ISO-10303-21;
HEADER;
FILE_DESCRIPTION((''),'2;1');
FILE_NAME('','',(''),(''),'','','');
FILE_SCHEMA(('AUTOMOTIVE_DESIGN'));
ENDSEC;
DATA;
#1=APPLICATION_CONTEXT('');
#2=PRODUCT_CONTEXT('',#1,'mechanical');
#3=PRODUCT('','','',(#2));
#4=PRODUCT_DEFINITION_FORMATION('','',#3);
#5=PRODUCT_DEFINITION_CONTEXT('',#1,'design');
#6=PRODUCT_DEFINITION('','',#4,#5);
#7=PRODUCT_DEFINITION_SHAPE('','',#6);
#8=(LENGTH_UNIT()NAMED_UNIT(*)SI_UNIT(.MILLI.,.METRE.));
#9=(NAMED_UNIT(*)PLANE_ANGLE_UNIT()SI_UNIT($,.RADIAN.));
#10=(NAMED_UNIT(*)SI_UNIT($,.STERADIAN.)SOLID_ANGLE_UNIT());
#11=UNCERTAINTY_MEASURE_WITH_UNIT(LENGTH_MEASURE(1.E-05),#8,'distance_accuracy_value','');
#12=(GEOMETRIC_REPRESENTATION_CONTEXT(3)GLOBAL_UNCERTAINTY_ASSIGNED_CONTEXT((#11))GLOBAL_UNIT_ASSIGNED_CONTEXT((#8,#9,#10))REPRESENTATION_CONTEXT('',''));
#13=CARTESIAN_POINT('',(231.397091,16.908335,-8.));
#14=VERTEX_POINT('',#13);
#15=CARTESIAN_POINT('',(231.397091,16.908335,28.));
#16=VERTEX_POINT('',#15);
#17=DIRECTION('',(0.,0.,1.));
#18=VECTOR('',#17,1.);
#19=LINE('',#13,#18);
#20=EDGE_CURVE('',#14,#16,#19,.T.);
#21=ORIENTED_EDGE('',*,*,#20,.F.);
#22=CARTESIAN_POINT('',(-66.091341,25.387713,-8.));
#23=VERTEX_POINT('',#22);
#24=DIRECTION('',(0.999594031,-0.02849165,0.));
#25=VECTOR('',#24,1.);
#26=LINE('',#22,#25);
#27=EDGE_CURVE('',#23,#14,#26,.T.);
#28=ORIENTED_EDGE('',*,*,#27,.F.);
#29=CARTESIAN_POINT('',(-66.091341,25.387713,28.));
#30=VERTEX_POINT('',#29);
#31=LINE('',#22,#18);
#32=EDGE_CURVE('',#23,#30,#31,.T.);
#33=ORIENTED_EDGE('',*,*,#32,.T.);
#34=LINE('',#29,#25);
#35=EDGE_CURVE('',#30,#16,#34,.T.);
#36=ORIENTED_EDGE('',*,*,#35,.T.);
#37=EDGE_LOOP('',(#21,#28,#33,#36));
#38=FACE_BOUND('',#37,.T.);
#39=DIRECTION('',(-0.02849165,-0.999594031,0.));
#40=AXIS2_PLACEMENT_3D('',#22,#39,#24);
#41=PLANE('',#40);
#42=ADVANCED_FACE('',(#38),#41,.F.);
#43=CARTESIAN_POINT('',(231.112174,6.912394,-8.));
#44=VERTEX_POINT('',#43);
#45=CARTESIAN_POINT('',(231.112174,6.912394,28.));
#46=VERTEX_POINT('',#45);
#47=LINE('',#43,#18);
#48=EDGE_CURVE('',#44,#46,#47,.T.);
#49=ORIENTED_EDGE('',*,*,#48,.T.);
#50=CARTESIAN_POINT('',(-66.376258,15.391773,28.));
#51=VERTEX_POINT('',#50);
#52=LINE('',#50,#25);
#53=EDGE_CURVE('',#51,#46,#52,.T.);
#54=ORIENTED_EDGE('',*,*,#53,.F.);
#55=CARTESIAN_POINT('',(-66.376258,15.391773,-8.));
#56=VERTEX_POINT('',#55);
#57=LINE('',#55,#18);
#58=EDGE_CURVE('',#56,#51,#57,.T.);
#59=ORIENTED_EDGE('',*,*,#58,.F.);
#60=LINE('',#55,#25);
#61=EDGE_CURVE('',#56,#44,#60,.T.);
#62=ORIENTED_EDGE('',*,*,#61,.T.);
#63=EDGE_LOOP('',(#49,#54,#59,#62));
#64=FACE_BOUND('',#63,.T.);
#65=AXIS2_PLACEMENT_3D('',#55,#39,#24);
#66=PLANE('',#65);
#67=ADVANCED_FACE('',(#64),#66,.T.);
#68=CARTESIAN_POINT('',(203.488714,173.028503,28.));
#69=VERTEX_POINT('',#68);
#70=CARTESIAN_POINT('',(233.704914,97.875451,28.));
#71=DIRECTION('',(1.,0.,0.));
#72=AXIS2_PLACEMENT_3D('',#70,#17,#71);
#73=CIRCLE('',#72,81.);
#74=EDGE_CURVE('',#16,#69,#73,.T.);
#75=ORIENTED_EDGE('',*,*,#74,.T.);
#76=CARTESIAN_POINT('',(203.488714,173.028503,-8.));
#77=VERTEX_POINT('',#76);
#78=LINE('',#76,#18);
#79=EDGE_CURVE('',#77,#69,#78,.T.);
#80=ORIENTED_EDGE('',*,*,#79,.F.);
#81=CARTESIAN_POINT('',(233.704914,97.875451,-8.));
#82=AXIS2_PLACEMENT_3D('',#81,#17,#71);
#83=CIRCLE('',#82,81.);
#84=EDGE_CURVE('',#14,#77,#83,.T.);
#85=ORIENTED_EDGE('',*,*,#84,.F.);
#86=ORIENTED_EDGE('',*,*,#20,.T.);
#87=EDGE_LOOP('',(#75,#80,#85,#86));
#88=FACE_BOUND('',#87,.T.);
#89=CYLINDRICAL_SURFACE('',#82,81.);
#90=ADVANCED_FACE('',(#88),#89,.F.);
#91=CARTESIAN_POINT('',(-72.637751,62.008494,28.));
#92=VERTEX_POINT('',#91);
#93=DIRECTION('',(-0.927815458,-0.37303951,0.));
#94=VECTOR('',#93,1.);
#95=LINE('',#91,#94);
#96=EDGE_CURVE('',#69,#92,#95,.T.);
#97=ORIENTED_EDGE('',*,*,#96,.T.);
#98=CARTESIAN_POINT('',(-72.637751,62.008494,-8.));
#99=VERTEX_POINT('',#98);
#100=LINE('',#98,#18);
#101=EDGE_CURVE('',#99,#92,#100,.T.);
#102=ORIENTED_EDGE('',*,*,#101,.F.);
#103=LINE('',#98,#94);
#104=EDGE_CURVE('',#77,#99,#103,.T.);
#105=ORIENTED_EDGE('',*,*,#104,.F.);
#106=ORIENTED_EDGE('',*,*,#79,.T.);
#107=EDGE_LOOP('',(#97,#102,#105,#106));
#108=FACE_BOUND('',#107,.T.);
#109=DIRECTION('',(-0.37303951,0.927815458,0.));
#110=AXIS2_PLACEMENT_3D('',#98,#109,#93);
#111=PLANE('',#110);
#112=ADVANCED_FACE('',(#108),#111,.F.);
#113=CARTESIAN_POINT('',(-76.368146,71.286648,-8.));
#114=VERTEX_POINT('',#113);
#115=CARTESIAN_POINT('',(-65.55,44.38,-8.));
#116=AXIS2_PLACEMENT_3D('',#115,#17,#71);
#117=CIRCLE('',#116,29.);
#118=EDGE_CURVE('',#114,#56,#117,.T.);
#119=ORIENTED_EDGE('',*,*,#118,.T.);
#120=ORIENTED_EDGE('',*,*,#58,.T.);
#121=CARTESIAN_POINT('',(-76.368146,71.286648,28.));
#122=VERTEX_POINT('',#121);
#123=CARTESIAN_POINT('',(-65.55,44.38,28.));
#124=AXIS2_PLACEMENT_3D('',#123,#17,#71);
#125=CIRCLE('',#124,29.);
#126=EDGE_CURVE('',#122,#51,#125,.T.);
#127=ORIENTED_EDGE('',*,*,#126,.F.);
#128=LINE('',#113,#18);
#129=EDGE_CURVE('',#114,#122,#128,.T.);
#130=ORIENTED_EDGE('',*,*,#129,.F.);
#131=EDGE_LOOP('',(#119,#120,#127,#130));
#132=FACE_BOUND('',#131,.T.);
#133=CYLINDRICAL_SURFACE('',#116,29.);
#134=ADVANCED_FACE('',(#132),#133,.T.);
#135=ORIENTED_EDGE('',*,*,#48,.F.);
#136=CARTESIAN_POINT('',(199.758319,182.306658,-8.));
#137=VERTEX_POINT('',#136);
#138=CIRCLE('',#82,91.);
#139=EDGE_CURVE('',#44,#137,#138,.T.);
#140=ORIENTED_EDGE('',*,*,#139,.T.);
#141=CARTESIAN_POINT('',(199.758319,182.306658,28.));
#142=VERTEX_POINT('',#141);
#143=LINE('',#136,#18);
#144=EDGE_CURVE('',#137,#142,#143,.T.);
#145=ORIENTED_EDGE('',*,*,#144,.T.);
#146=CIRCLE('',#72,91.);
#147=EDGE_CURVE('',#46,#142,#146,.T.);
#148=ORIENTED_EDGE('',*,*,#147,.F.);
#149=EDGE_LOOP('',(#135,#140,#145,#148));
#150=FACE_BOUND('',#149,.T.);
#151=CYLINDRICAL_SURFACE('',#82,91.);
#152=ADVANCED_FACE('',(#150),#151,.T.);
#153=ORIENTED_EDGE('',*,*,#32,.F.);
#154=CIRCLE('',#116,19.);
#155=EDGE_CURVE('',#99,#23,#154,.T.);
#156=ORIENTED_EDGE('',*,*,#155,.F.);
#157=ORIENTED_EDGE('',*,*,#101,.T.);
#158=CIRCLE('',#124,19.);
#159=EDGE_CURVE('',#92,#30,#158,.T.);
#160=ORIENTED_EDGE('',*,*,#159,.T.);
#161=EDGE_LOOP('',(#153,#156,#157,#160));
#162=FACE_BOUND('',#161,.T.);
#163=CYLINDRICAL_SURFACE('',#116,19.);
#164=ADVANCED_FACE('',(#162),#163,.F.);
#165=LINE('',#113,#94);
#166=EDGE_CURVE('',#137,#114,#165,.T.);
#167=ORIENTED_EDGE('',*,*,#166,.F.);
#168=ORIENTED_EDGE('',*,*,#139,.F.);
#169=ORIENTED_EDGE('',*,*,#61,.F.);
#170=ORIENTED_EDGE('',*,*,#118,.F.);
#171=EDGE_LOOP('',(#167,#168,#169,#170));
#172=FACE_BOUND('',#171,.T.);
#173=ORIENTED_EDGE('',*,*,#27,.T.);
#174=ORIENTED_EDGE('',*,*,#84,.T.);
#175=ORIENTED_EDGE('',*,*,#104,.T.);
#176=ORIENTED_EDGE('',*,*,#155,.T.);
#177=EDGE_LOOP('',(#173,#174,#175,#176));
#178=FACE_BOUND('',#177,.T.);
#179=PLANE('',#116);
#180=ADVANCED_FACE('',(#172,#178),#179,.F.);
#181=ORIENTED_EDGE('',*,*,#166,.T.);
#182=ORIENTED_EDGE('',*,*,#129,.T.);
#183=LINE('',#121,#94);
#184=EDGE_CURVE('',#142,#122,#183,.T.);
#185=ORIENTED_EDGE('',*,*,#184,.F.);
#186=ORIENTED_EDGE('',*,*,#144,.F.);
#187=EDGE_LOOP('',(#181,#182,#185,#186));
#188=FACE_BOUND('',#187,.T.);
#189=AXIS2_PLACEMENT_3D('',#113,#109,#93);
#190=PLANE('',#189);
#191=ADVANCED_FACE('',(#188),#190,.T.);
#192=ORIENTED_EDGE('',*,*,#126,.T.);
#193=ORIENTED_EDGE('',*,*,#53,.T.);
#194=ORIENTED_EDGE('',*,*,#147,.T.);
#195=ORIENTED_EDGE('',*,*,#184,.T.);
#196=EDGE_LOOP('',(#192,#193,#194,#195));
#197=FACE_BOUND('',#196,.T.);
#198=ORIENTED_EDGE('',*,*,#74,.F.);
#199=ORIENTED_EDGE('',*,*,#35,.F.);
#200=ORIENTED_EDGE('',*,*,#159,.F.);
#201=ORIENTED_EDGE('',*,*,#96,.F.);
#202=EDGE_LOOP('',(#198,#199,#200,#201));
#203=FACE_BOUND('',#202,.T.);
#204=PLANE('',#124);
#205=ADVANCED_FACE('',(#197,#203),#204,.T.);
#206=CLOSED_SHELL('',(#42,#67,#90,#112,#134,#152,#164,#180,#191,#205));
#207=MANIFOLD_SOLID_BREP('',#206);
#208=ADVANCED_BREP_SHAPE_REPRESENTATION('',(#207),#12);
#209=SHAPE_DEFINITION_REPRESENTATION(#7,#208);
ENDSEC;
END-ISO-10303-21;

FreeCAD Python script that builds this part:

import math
import FreeCAD as App
import Part
import Sketcher
Q = App.Units.Quantity

doc = App.newDocument("Part")
body = doc.addObject("PartDesign::Body", "Body")

# Sketch on XY plane
sketch1 = body.newObject("Sketcher::SketchObject", "Sketch")
sketch1.AttachmentSupport = (doc.getObject("XY_Plane"), [""])
sketch1.MapMode = "FlatFace"
sketch1.addGeometry(Part.LineSegment(App.Vector(-66.376258, 15.391773, 0), App.Vector(231.112174, 6.912394, 0)), False)
sketch1.addGeometry(Part.ArcOfCircle(Part.Circle(App.Vector(233.704914, 97.875451, 0), App.Vector(0, 0, 1), 91), math.radians(-91.632672), math.radians(111.903194)), False)
sketch1.addGeometry(Part.LineSegment(App.Vector(199.758319, 182.306658, 0), App.Vector(-76.368146, 71.286648, 0)), False)
sketch1.addGeometry(Part.ArcOfCircle(Part.Circle(App.Vector(-65.55, 44.38, 0), App.Vector(0, 0, 1), 29), math.radians(111.903194), math.radians(268.367328)), False)
sketch1.addGeometry(Part.LineSegment(App.Vector(231.397091, 16.908335, 0), App.Vector(-66.091341, 25.387713, 0)), False)
sketch1.addGeometry(Part.ArcOfCircle(Part.Circle(App.Vector(-65.55, 44.38, 0), App.Vector(0, 0, 1), 19), math.radians(111.903194), math.radians(268.367328)), False)
sketch1.addGeometry(Part.LineSegment(App.Vector(-72.637751, 62.008494, 0), App.Vector(203.488714, 173.028503, 0)), False)
sketch1.addGeometry(Part.ArcOfCircle(Part.Circle(App.Vector(233.704914, 97.875451, 0), App.Vector(0, 0, 1), 81), math.radians(-91.632672), math.radians(111.903194)), False)
sketch1.addConstraint(Sketcher.Constraint("Tangent", 0, 2, 1, 1))
sketch1.addConstraint(Sketcher.Constraint("Tangent", 1, 2, 2, 1))
sketch1.addConstraint(Sketcher.Constraint("Tangent", 2, 2, 3, 1))
sketch1.addConstraint(Sketcher.Constraint("Tangent", 3, 2, 0, 1))
sketch1.addConstraint(Sketcher.Constraint("Tangent", 4, 2, 5, 2))
sketch1.addConstraint(Sketcher.Constraint("Tangent", 5, 1, 6, 1))
sketch1.addConstraint(Sketcher.Constraint("Tangent", 6, 2, 7, 2))
sketch1.addConstraint(Sketcher.Constraint("Tangent", 7, 1, 4, 1))
sketch1.addConstraint(Sketcher.Constraint("Coincident", 5, 3, 3, 3))
sketch1.addConstraint(Sketcher.Constraint("Coincident", 7, 3, 1, 3))
sketch1.addConstraint(Sketcher.Constraint("Parallel", 0, 4))
sketch1.addConstraint(Sketcher.Constraint("Radius", 1, Q("91 mm")))
sketch1.addConstraint(Sketcher.Constraint("Radius", 3, Q("29 mm")))
sketch1.addConstraint(Sketcher.Constraint("Radius", 5, Q("19 mm")))
sketch1.addConstraint(Sketcher.Constraint("DistanceX", 3, 3, -1, 1, Q("65.55 mm")))
sketch1.addConstraint(Sketcher.Constraint("DistanceY", -1, 1, 3, 3, Q("44.38 mm")))
sketch1.addConstraint(Sketcher.Constraint("DistanceX", 6, 2, 1, 3, Q("30.2162 mm")))
sketch1.addConstraint(Sketcher.Constraint("DistanceY", -1, 1, 1, 3, Q("97.875451 mm")))
pad1 = body.newObject("PartDesign::Pad", "Pad")
pad1.Profile = sketch1
pad1.Type = "TwoLengths"
pad1.Length = 28
pad1.Length2 = 8

doc.recompute()
